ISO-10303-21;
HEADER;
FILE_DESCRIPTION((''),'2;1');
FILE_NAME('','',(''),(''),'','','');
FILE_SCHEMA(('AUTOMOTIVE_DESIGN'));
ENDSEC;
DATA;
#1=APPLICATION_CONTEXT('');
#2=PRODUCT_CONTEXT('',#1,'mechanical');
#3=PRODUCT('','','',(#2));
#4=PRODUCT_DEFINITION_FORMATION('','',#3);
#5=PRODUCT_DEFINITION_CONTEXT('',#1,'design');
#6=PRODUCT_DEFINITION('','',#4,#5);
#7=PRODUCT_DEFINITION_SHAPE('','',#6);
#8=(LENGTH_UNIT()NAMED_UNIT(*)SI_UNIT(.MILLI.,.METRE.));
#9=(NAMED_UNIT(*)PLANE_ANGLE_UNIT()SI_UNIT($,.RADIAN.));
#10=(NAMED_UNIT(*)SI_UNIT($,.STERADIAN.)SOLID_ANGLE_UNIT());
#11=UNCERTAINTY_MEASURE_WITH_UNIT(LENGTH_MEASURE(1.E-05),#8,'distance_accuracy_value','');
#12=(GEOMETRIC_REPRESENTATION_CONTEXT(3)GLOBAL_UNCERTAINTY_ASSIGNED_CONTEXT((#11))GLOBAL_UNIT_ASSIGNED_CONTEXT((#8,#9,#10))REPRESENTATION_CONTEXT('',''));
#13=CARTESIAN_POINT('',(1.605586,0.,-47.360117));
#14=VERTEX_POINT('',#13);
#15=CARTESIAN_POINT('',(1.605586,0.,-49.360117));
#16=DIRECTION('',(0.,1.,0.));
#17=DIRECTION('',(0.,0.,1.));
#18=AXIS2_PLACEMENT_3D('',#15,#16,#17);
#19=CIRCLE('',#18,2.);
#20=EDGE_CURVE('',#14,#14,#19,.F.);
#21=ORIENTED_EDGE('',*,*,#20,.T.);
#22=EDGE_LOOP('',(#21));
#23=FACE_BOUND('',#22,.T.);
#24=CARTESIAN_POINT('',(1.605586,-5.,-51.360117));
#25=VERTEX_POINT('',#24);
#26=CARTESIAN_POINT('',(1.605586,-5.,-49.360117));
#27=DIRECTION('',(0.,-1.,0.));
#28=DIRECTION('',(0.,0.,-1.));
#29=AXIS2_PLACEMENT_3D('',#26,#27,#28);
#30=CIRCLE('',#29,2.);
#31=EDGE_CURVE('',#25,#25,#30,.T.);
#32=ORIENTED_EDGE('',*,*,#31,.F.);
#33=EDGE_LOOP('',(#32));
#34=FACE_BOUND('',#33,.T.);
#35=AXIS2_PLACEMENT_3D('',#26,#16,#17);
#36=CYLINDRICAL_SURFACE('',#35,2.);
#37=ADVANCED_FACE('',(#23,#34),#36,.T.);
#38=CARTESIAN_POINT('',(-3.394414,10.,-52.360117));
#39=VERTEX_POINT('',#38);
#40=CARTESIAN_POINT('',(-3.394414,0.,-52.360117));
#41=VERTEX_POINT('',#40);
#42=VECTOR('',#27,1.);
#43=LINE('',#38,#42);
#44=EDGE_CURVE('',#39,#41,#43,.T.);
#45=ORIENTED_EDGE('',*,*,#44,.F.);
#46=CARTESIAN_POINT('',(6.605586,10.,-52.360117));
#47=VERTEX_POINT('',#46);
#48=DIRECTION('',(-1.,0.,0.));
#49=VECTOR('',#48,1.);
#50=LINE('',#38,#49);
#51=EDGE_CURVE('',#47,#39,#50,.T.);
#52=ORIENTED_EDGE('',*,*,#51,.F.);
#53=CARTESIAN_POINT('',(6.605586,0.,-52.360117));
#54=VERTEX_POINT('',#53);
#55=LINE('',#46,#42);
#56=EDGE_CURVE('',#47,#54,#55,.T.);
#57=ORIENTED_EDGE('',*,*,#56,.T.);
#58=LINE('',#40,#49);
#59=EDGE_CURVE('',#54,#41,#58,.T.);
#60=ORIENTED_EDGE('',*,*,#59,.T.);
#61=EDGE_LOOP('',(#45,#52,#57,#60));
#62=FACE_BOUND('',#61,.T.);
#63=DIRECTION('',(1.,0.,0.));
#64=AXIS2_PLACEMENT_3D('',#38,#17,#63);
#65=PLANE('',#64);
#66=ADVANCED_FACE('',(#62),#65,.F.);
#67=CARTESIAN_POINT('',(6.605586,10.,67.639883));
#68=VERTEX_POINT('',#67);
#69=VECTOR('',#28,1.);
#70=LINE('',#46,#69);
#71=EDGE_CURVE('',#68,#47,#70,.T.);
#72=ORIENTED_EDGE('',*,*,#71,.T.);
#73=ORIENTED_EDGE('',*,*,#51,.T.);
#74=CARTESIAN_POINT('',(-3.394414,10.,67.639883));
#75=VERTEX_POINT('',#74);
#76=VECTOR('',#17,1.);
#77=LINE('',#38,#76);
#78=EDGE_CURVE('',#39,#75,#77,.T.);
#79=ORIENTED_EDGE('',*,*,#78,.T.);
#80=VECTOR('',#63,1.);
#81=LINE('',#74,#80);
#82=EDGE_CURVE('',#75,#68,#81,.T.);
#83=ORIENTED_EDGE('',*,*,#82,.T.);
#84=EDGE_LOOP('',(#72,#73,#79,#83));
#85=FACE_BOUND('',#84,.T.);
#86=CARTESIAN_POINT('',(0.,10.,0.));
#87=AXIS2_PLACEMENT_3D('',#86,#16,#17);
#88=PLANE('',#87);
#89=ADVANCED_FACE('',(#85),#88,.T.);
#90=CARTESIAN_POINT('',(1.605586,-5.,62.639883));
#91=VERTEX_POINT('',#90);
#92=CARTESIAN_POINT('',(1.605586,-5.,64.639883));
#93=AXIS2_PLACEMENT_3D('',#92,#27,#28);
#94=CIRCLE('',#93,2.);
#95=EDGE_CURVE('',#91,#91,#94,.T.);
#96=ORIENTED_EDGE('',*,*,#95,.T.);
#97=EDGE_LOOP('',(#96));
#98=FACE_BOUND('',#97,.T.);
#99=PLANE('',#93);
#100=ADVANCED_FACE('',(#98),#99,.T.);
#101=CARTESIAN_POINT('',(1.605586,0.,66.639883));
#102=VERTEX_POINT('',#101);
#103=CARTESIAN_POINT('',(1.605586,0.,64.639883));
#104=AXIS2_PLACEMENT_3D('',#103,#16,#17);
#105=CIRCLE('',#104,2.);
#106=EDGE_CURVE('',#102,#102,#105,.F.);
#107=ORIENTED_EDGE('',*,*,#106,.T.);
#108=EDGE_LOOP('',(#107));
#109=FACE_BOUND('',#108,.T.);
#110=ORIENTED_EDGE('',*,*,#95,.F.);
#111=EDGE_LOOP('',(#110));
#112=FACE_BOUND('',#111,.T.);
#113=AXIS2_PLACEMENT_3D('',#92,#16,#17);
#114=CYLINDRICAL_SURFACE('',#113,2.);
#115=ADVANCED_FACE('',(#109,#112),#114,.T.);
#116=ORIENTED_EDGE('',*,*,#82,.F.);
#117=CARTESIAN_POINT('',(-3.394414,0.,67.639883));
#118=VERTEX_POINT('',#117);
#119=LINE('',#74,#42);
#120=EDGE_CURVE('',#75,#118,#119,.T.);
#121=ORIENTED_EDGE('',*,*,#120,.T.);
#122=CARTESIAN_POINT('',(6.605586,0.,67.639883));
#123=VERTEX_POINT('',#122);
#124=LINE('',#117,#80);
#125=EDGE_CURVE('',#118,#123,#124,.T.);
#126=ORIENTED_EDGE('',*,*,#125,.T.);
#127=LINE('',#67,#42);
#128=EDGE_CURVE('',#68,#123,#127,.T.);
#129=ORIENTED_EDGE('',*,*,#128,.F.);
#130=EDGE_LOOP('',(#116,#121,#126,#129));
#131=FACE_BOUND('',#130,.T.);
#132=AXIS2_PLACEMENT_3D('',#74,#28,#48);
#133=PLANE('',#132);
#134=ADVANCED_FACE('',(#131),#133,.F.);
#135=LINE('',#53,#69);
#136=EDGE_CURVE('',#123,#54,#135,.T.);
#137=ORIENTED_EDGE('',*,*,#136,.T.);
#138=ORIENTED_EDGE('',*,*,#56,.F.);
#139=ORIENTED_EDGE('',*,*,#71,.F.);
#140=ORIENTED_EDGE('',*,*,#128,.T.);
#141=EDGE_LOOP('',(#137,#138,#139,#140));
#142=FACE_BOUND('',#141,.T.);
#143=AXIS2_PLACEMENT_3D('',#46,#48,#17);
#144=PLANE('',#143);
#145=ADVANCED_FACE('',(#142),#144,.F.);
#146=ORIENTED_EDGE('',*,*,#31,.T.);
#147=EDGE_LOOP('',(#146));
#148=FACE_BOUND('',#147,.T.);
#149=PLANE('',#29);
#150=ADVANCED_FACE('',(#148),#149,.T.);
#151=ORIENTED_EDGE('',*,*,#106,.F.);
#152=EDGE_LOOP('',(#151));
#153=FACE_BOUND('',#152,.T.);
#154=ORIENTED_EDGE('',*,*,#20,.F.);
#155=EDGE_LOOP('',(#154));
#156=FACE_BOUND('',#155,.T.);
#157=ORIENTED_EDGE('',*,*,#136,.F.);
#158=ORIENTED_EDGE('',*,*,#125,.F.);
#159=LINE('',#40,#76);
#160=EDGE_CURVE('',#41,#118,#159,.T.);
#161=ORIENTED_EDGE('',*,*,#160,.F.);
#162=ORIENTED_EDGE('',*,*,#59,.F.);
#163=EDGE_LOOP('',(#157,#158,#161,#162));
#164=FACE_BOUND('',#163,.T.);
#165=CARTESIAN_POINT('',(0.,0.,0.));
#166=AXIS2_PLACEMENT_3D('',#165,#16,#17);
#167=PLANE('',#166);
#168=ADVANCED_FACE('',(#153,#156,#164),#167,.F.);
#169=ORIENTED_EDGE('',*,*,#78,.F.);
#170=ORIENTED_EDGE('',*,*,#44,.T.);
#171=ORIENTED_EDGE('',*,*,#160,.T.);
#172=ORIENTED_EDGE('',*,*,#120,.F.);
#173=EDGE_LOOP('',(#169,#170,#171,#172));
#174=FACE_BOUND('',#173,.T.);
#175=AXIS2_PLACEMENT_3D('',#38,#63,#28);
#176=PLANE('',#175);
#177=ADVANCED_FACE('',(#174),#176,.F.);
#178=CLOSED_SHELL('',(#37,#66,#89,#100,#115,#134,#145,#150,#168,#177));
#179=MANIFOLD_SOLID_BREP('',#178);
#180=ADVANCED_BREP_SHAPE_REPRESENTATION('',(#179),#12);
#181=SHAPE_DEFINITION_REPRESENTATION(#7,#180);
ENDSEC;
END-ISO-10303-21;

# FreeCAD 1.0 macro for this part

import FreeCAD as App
import Part
import Sketcher
Q = App.Units.Quantity

doc = App.newDocument("Part")
params = doc.addObject("Spreadsheet::Sheet", "Params")
for row, (alias, value) in enumerate([
    ("sketch1_width", "10 mm"),
    ("sketch1_height", "120 mm"),
    ("pad1_length", "10 mm"),
    ("sketch2_diameter", "4 mm"),
    ("pad2_length", "5 mm"),
], start=1):
    params.set(f"A{row}", alias)
    params.set(f"B{row}", "=" + value)
    params.setAlias(f"B{row}", alias)

body = doc.addObject("PartDesign::Body", "Body")

# Sketch on XZ plane
sketch1 = doc.addObject("Sketcher::SketchObject", "Sketch")
body.addObject(sketch1)
sketch1.AttachmentSupport = (doc.XZ_Plane, [""])
sketch1.MapMode = "FlatFace"
sketch1.addGeometry([
    Part.LineSegment(App.Vector(-3, -52, 0), App.Vector(-3, 68, 0)),
    Part.LineSegment(App.Vector(-3, 68, 0), App.Vector(7, 68, 0)),
    Part.LineSegment(App.Vector(7, 68, 0), App.Vector(7, -52, 0)),
    Part.LineSegment(App.Vector(7, -52, 0), App.Vector(-3, -52, 0)),
], False)
sketch1.addConstraint([
    Sketcher.Constraint("Coincident", 0, 2, 1, 1),
    Sketcher.Constraint("Coincident", 1, 2, 2, 1),
    Sketcher.Constraint("Coincident", 2, 2, 3, 1),
    Sketcher.Constraint("Coincident", 3, 2, 0, 1),
    Sketcher.Constraint("Vertical", 0),
    Sketcher.Constraint("Horizontal", 1),
    Sketcher.Constraint("Vertical", 2),
    Sketcher.Constraint("Horizontal", 3),
    Sketcher.Constraint("DistanceX", 1, 1, 1, 2, Q("10 mm")),
    Sketcher.Constraint("DistanceY", 0, 1, 0, 2, Q("120 mm")),
    Sketcher.Constraint("DistanceX", 0, 2, -1, 1, Q("3.394414 mm")),
    Sketcher.Constraint("DistanceY", -1, 1, 0, 2, Q("67.639883 mm")),
])
sketch1.setExpression("Constraints[8]", "Params.sketch1_width")
sketch1.setExpression("Constraints[9]", "Params.sketch1_height")
pad1 = doc.addObject("PartDesign::Pad", "Pad")
body.addObject(pad1)
pad1.Profile = sketch1
pad1.setExpression("Length", "Params.pad1_length")
pad1.Reversed = True

# Sketch on XZ plane
sketch2 = doc.addObject("Sketcher::SketchObject", "Sketch001")
body.addObject(sketch2)
sketch2.AttachmentSupport = (doc.XZ_Plane, [""])
sketch2.MapMode = "FlatFace"
sketch2.addGeometry([
    Part.Circle(App.Vector(1.6, -49.4, 0), App.Vector(0, 0, 1), 2),
    Part.Circle(App.Vector(1.6, 64.6, 0), App.Vector(0, 0, 1), 2),
], False)
sketch2.addConstraint([
    Sketcher.Constraint("Equal", 0, 1),
    Sketcher.Constraint("Vertical", 0, 3, 1, 3),
    Sketcher.Constraint("Diameter", 0, Q("4 mm")),
    Sketcher.Constraint("DistanceY", 0, 3, 1, 3, Q("114 mm")),
    Sketcher.Constraint("DistanceX", -1, 1, 0, 3, Q("1.605586 mm")),
    Sketcher.Constraint("DistanceY", 0, 3, -1, 1, Q("49.360117 mm")),
])
sketch2.setExpression("Constraints[2]", "Params.sketch2_diameter")
pad2 = doc.addObject("PartDesign::Pad", "Pad001")
body.addObject(pad2)
pad2.Profile = sketch2
pad2.setExpression("Length", "Params.pad2_length")

doc.recompute()
